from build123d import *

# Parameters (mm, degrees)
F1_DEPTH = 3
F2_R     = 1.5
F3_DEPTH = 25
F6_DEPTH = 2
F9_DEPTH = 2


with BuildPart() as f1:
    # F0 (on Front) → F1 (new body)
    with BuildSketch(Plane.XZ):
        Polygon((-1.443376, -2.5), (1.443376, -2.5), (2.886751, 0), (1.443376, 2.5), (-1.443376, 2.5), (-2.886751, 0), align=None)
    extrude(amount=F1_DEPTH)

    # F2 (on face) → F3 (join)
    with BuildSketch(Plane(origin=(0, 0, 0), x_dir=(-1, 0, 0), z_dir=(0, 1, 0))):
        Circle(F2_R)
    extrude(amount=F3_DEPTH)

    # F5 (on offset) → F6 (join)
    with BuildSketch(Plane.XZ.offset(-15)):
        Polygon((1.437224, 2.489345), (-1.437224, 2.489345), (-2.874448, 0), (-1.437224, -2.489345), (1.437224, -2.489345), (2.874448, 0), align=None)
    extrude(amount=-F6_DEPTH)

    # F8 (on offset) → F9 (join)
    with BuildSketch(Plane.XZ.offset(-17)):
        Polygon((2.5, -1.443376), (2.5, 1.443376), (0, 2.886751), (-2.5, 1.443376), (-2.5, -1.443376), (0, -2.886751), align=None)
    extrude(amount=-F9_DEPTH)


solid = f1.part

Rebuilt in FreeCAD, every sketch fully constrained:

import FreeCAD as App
import Part
import Sketcher
from FreeCAD import Vector
Q = App.Units.Quantity


def add_polygon(sketch, points):
    """Adds a closed chain of lines whose ends are joined by coincident constraints."""
    first, n = sketch.GeometryCount, len(points)
    for a, b in zip(points, points[1:] + points[:1]):
        sketch.addGeometry(Part.LineSegment(App.Vector(*a, 0), App.Vector(*b, 0)), False)
    for i in range(n):
        sketch.addConstraint(Sketcher.Constraint("Coincident", first + i, 2, first + (i + 1) % n, 1))

doc = App.newDocument("Part")
body = doc.addObject("PartDesign::Body", "Body")

sketch1 = body.newObject("Sketcher::SketchObject", "Sketch")
sketch1.AttachmentSupport = (doc.getObject("XZ_Plane"), [""])
sketch1.MapMode = "FlatFace"
add_polygon(sketch1, [(-1.4, -2.5), (1.4, -2.5), (2.9, 0), (1.4, 2.5), (-1.4, 2.5), (-2.9, 0)])
sketch1.addConstraint([
    Sketcher.Constraint("Horizontal", 0),
    Sketcher.Constraint("Horizontal", 3),
    Sketcher.Constraint("Symmetric", 0, 2, 3, 2, -1, 1),
    Sketcher.Constraint("Symmetric", 1, 2, 4, 2, -1, 1),
    Sketcher.Constraint("PointOnObject", 1, 2, -1),
    Sketcher.Constraint("Parallel", 2, 5),
    Sketcher.Constraint("Vertical", 0, 2, 2, 2),
    Sketcher.Constraint("Angle", 1, Q("60.000012 deg")),
    Sketcher.Constraint("DistanceY", 0, 2, 2, 2, Q("5 mm")),
    Sketcher.Constraint("DistanceX", 0, 1, 0, 2, Q("2.886752 mm")),
])
pad1 = body.newObject("PartDesign::Pad", "Pad")
pad1.Profile = sketch1
pad1.Length = 3

sketch2 = body.newObject("Sketcher::SketchObject", "Sketch001")
sketch2.AttachmentSupport = (doc.getObject("XZ_Plane"), [""])
sketch2.MapMode = "FlatFace"
sketch2.addGeometry(Part.Circle(Vector(0, 0, 0), Vector(0, 0, 1), 1.5), False)
sketch2.addConstraint([
    Sketcher.Constraint("Coincident", 0, 3, -1, 1),
    Sketcher.Constraint("Diameter", 0, Q("3 mm")),
])
pad2 = body.newObject("PartDesign::Pad", "Pad001")
pad2.Profile = sketch2
pad2.Length = 25
pad2.Reversed = True

sketch3 = body.newObject("Sketcher::SketchObject", "Sketch002")
sketch3.AttachmentSupport = (doc.getObject("XZ_Plane"), [""])
sketch3.MapMode = "FlatFace"
sketch3.AttachmentOffset = App.Placement(Vector(0, 0, -15), App.Rotation())
add_polygon(sketch3, [(1.4, 2.5), (-1.4, 2.5), (-2.9, 0), (-1.4, -2.5), (1.4, -2.5), (2.9, 0)])
sketch3.addConstraint([
    Sketcher.Constraint("Horizontal", 0),
    Sketcher.Constraint("Horizontal", 3),
    Sketcher.Constraint("Symmetric", 0, 2, 3, 2, -1, 1),
    Sketcher.Constraint("Symmetric", 1, 2, 4, 2, -1, 1),
    Sketcher.Constraint("PointOnObject", 1, 2, -1),
    Sketcher.Constraint("Parallel", 2, 5),
    Sketcher.Constraint("Vertical", 0, 2, 2, 2),
    Sketcher.Constraint("Angle", 1, Q("-120 deg")),
    Sketcher.Constraint("DistanceX", 0, 2, 0, 1, Q("2.874448 mm")),
    Sketcher.Constraint("Distance", 1, Q("2.874448 mm")),
])
pad3 = body.newObject("PartDesign::Pad", "Pad002")
pad3.Profile = sketch3
pad3.Length = 2
pad3.Reversed = True

sketch4 = body.newObject("Sketcher::SketchObject", "Sketch003")
sketch4.AttachmentSupport = (doc.getObject("XZ_Plane"), [""])
sketch4.MapMode = "FlatFace"
sketch4.AttachmentOffset = App.Placement(Vector(0, 0, -17), App.Rotation())
add_polygon(sketch4, [(2.5, -1.4), (2.5, 1.4), (0, 2.9), (-2.5, 1.4), (-2.5, -1.4), (0, -2.9)])
sketch4.addConstraint([
    Sketcher.Constraint("Vertical", 0),
    Sketcher.Constraint("Vertical", 3),
    Sketcher.Constraint("Symmetric", 0, 2, 3, 2, -1, 1),
    Sketcher.Constraint("Symmetric", 1, 2, 4, 2, -1, 1),
    Sketcher.Constraint("PointOnObject", 1, 2, -2),
    Sketcher.Constraint("Parallel", 2, 5),
    Sketcher.Constraint("Horizontal", 0, 2, 2, 2),
    Sketcher.Constraint("Angle", 1, Q("150.000012 deg")),
    Sketcher.Constraint("DistanceX", 2, 2, 0, 2, Q("5 mm")),
    Sketcher.Constraint("DistanceY", 0, 1, 0, 2, Q("2.886752 mm")),
])
pad4 = body.newObject("PartDesign::Pad", "Pad003")
pad4.Profile = sketch4
pad4.Length = 2
pad4.Reversed = True

doc.recompute()
